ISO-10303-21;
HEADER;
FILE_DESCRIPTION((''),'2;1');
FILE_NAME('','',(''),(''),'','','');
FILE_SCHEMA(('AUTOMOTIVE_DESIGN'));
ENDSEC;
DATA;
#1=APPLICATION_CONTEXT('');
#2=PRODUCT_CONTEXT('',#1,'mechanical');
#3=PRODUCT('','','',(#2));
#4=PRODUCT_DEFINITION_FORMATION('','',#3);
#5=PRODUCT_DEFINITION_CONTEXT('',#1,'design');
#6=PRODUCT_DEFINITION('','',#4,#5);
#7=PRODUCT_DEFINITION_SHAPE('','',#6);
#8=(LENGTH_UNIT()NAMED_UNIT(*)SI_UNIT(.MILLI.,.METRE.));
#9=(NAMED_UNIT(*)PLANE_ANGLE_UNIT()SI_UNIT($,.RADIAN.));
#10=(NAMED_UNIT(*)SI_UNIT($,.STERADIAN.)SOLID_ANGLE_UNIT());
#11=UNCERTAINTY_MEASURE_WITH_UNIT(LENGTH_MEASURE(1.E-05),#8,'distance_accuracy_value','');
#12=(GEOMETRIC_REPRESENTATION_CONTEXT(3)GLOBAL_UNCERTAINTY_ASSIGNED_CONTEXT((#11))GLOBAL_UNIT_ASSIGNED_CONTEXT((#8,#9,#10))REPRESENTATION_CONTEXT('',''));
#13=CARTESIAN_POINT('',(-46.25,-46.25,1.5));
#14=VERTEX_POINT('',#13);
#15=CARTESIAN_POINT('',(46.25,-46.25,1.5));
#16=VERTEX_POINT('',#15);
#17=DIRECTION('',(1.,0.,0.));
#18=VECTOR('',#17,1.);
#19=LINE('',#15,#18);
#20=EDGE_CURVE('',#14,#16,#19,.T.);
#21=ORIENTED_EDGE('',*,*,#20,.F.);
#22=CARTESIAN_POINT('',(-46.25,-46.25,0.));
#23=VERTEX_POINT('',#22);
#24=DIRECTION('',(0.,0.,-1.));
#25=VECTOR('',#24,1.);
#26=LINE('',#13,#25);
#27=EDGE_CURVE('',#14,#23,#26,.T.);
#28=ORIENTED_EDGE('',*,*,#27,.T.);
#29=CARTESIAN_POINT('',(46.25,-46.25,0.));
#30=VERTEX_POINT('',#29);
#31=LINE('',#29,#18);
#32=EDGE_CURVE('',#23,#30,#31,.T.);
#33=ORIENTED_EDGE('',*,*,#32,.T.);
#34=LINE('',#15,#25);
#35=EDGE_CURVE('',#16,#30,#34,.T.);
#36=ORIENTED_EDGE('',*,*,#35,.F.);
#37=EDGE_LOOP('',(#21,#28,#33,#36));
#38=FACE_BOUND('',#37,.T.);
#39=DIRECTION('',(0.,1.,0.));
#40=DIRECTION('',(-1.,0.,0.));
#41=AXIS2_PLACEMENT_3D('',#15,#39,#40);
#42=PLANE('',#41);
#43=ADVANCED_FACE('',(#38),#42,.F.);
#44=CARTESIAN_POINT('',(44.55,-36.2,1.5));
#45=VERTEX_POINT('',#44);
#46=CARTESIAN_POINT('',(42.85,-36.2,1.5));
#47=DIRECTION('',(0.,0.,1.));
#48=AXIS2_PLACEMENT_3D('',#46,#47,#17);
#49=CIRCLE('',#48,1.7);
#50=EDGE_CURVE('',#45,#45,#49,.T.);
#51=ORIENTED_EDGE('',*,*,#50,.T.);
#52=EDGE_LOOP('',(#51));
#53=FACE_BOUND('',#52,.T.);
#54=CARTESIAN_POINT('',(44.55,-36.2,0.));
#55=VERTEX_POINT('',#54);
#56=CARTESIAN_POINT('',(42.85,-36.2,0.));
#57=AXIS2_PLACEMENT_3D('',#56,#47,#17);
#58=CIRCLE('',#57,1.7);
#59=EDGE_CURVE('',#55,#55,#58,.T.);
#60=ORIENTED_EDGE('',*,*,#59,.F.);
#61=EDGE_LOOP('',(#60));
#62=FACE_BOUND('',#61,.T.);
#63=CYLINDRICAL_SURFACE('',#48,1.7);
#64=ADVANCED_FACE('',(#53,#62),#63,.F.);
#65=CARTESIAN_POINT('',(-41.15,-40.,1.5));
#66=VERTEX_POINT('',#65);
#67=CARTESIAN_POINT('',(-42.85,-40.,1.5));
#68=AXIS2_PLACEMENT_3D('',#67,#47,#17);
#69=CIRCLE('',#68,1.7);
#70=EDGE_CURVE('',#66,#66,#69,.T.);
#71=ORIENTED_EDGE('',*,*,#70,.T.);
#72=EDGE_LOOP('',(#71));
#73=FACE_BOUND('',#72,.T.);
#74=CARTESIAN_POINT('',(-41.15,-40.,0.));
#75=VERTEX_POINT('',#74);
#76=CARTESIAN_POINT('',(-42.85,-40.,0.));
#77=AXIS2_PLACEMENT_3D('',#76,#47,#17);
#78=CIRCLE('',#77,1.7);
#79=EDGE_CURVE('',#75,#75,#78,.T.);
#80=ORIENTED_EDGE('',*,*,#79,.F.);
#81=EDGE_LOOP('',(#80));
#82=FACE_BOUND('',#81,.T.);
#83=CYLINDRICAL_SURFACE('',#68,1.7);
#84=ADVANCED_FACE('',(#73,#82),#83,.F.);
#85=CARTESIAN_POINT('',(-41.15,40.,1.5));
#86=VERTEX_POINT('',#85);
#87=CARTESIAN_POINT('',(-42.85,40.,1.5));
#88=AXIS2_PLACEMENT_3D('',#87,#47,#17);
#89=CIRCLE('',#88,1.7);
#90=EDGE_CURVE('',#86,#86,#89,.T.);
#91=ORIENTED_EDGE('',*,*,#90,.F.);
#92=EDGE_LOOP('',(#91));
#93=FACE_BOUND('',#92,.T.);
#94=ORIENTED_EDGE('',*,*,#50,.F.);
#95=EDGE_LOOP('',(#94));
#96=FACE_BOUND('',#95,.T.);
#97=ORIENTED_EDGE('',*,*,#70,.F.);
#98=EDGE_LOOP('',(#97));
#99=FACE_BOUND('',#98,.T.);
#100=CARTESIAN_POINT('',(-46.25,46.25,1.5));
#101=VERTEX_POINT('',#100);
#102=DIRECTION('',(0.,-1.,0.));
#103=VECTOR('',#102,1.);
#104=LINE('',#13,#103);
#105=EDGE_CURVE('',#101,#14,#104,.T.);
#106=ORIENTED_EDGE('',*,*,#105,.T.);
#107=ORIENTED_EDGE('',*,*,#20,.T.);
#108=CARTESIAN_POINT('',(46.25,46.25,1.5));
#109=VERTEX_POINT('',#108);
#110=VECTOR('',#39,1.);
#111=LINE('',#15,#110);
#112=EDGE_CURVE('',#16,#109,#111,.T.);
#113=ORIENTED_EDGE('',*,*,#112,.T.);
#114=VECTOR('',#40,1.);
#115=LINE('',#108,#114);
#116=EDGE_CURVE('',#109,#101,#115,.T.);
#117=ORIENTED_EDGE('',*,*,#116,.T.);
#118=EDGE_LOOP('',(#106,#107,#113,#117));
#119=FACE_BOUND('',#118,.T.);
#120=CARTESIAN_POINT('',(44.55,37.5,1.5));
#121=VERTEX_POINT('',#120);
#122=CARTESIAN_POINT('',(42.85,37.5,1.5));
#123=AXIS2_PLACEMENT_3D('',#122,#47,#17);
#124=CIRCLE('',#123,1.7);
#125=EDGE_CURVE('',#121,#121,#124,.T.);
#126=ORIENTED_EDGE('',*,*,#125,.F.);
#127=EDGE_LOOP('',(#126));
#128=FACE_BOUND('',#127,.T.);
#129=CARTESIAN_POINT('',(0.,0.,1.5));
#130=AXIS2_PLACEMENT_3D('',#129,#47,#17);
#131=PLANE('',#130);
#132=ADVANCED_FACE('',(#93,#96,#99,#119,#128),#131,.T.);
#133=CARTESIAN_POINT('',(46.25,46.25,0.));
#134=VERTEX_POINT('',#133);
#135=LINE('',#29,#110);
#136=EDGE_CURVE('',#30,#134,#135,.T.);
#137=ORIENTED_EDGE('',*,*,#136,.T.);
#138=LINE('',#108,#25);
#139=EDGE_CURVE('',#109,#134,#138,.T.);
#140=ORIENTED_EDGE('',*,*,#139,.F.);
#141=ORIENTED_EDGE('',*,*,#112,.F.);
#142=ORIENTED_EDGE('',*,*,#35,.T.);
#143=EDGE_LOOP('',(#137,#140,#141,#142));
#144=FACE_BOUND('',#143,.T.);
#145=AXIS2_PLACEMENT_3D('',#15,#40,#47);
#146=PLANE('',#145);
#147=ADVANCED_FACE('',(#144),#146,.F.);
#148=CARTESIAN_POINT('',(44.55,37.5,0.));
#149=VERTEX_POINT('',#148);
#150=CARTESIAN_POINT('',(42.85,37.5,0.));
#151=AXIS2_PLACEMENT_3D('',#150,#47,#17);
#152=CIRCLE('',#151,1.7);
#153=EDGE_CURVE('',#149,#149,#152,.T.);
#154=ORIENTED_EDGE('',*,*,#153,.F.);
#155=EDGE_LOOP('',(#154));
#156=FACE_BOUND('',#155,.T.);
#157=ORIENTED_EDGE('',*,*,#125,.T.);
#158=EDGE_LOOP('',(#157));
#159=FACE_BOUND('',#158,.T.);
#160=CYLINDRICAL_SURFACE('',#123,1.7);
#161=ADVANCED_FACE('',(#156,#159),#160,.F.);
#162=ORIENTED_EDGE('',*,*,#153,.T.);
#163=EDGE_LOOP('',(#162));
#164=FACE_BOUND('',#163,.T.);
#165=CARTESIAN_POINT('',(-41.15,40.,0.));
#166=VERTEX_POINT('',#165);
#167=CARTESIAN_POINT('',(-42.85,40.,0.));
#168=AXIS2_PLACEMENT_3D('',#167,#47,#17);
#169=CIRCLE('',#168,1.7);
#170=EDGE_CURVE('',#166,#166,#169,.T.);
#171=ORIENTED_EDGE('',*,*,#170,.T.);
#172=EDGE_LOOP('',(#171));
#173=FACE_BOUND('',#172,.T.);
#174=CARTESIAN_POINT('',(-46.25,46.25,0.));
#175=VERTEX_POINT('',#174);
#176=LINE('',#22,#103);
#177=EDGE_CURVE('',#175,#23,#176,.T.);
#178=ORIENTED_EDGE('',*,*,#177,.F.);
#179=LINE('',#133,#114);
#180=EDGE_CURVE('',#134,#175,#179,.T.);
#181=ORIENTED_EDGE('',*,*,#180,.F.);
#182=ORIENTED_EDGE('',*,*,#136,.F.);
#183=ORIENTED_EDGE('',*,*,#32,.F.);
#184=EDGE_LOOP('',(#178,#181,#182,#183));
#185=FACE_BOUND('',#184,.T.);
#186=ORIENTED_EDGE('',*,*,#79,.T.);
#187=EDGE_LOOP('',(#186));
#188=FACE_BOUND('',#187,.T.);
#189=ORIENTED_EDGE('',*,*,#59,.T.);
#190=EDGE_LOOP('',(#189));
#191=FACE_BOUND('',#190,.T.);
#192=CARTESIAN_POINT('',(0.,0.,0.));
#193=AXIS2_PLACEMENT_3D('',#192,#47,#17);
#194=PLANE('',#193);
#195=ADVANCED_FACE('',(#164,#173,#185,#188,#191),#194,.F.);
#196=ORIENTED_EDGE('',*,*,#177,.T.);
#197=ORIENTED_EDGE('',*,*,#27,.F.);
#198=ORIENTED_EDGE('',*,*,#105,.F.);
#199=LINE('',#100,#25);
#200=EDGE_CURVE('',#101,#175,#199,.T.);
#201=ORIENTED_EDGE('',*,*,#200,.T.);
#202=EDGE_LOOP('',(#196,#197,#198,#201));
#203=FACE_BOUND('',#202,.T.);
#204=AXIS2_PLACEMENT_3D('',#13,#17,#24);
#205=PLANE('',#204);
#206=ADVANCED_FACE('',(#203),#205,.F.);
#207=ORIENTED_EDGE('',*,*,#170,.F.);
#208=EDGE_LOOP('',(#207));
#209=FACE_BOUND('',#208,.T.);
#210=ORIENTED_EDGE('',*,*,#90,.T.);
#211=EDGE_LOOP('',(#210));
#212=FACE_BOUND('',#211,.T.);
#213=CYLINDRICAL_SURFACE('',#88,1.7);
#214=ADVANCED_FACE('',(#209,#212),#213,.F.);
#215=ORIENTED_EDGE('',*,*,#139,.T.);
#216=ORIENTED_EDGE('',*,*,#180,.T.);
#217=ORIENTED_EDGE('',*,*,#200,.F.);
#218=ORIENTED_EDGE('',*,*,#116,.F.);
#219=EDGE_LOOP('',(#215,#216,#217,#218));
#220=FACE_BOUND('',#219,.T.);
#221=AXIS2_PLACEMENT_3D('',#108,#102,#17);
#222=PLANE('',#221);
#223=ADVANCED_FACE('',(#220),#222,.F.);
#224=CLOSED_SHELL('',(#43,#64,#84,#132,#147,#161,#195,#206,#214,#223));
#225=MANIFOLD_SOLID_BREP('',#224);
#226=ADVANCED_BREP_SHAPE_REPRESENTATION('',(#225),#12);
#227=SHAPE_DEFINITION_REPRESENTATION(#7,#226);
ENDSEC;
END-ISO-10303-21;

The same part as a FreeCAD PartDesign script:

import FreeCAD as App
import Part
import Sketcher

V = App.Vector


def add_polygon(sketch, points):
    """Adds a closed chain of lines whose ends are joined by coincident constraints."""
    first, n = sketch.GeometryCount, len(points)
    for a, b in zip(points, points[1:] + points[:1]):
        sketch.addGeometry(Part.LineSegment(App.Vector(*a, 0), App.Vector(*b, 0)), False)
    for i in range(n):
        sketch.addConstraint(Sketcher.Constraint("Coincident", first + i, 2, first + (i + 1) % n, 1))

doc = App.newDocument("Part")
params = doc.addObject("Spreadsheet::Sheet", "Params")
for row, (alias, value) in enumerate([
    ("sketch1_width", "92.5 mm"),
    ("pad1_length", "1.5 mm"),
    ("sketch2_diameter", "3.4 mm"),
    ("hole_diameter", "3.4 mm"),
], start=1):
    params.set(f"A{row}", alias)
    params.set(f"B{row}", "=" + value)
    params.setAlias(f"B{row}", alias)

body = doc.addObject("PartDesign::Body", "Body")

# Sketch on XY plane
sketch1 = body.newObject("Sketcher::SketchObject", "Sketch")
sketch1.AttachmentSupport = (doc.getObject("XY_Plane"), [""])
sketch1.MapMode = "FlatFace"
add_polygon(sketch1, [(-46, 46), (-46, -46), (46, -46), (46, 46)])  # lines 0-3
sketch1.addConstraint(Sketcher.Constraint("Vertical", 0))
sketch1.addConstraint(Sketcher.Constraint("Horizontal", 1))
sketch1.addConstraint(Sketcher.Constraint("Vertical", 2))
sketch1.addConstraint(Sketcher.Constraint("Horizontal", 3))
sketch1.addConstraint(Sketcher.Constraint("Symmetric", 0, 2, 2, 2, -1, 1))
sketch1.addConstraint(Sketcher.Constraint("Equal", 3, 0))
sketch1.addConstraint(Sketcher.Constraint("DistanceX", 1, 1, 1, 2, 92.5))
sketch1.setExpression("Constraints[10]", "Params.sketch1_width")
pad1 = body.newObject("PartDesign::Pad", "Pad")
pad1.Profile = sketch1
pad1.setExpression("Length", "Params.pad1_length")

# Sketch on XY plane
sketch2 = body.newObject("Sketcher::SketchObject", "Sketch001")
sketch2.AttachmentSupport = (doc.getObject("XY_Plane"), [""])
sketch2.MapMode = "FlatFace"
sketch2.AttachmentOffset = App.Placement(V(0, 0, 1.5), App.Rotation())
sketch2.addGeometry(Part.Circle(V(42.9, -36.2, 0), V(0, 0, 1), 1.7), False)
sketch2.addGeometry(Part.Circle(V(42.9, 37.5, 0), V(0, 0, 1), 1.7), False)
sketch2.addGeometry(Part.Circle(V(-42.9, 40, 0), V(0, 0, 1), 1.7), False)
sketch2.addGeometry(Part.Circle(V(-42.9, -40, 0), V(0, 0, 1), 1.7), False)
sketch2.addConstraint(Sketcher.Constraint("Equal", 0, 1))
sketch2.addConstraint(Sketcher.Constraint("Equal", 1, 2))
sketch2.addConstraint(Sketcher.Constraint("Equal", 2, 3))
sketch2.addConstraint(Sketcher.Constraint("Symmetric", 2, 3, 3, 3, -1))
sketch2.addConstraint(Sketcher.Constraint("Vertical", 0, 3, 1, 3))
sketch2.addConstraint(Sketcher.Constraint("Diameter", 0, 3.4))
sketch2.addConstraint(Sketcher.Constraint("DistanceY", -1, 1, 2, 3, 40.0))
sketch2.addConstraint(Sketcher.Constraint("DistanceY", 0, 3, -1, 1, 36.2))
sketch2.addConstraint(Sketcher.Constraint("DistanceY", -1, 1, 1, 3, 37.5))
sketch2.addConstraint(Sketcher.Constraint("DistanceX", 2, 3, 1, 3, 85.7))
sketch2.addConstraint(Sketcher.Constraint("DistanceX", -1, 1, 0, 3, 42.85))
sketch2.setExpression("Constraints[5]", "Params.sketch2_diameter")
doc.recompute()
hole = body.newObject("PartDesign::Hole", "Hole")
hole.Profile = sketch2
hole.ThreadType = "None"
hole.setExpression("Diameter", "Params.hole_diameter")
hole.DepthType = "ThroughAll"

doc.recompute()
